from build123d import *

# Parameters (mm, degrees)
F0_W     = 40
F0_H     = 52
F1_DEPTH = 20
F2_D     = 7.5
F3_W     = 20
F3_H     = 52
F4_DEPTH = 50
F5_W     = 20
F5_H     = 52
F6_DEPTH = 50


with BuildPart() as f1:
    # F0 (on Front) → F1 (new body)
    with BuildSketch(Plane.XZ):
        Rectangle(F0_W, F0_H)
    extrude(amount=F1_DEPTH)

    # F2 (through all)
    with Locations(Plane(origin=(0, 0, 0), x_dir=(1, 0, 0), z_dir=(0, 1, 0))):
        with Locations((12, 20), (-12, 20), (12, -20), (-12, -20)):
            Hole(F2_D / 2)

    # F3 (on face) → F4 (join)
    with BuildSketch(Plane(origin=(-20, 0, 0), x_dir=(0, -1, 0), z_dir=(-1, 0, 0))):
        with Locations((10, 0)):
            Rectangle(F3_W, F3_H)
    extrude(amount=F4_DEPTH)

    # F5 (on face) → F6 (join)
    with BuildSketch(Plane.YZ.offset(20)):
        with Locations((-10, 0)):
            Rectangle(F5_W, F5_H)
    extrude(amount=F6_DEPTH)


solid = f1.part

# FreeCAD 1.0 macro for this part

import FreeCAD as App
import Part
import Sketcher
from FreeCAD import Vector
Q = App.Units.Quantity


def add_polygon(sketch, points):
    """Adds a closed chain of lines whose ends are joined by coincident constraints."""
    first, n = sketch.GeometryCount, len(points)
    for a, b in zip(points, points[1:] + points[:1]):
        sketch.addGeometry(Part.LineSegment(App.Vector(*a, 0), App.Vector(*b, 0)), False)
    for i in range(n):
        sketch.addConstraint(Sketcher.Constraint("Coincident", first + i, 2, first + (i + 1) % n, 1))

doc = App.newDocument("Part")
body = doc.addObject("PartDesign::Body", "Body")

# Sketch on XZ plane
sketch1 = doc.addObject("Sketcher::SketchObject", "Sketch")
body.addObject(sketch1)
sketch1.AttachmentSupport = (doc.XZ_Plane, [""])
sketch1.MapMode = "FlatFace"
add_polygon(sketch1, [(-20, 26), (-20, -26), (20, -26), (20, 26)])  # lines 0-3
sketch1.addConstraint(Sketcher.Constraint("Vertical", 0))
sketch1.addConstraint(Sketcher.Constraint("Horizontal", 1))
sketch1.addConstraint(Sketcher.Constraint("Vertical", 2))
sketch1.addConstraint(Sketcher.Constraint("Horizontal", 3))
sketch1.addConstraint(Sketcher.Constraint("Symmetric", 0, 2, 2, 2, -1, 1))
sketch1.addConstraint(Sketcher.Constraint("DistanceX", 1, 1, 1, 2, Q("40 mm")))
sketch1.addConstraint(Sketcher.Constraint("DistanceY", 0, 2, 0, 1, Q("52 mm")))
pad1 = doc.addObject("PartDesign::Pad", "Pad")
body.addObject(pad1)
pad1.Profile = sketch1
pad1.Length = 20

# Sketch on XZ plane
sketch2 = doc.addObject("Sketcher::SketchObject", "Sketch001")
body.addObject(sketch2)
sketch2.AttachmentSupport = (doc.XZ_Plane, [""])
sketch2.MapMode = "FlatFace"
sketch2.addGeometry(Part.Circle(Vector(12, -20, 0), Vector(0, 0, 1), 3.75), False)
sketch2.addGeometry(Part.Circle(Vector(-12, -20, 0), Vector(0, 0, 1), 3.75), False)
sketch2.addGeometry(Part.Circle(Vector(12, 20, 0), Vector(0, 0, 1), 3.75), False)
sketch2.addGeometry(Part.Circle(Vector(-12, 20, 0), Vector(0, 0, 1), 3.75), False)
sketch2.addConstraint(Sketcher.Constraint("Equal", 0, 1))
sketch2.addConstraint(Sketcher.Constraint("Equal", 1, 2))
sketch2.addConstraint(Sketcher.Constraint("Equal", 2, 3))
sketch2.addConstraint(Sketcher.Constraint("Symmetric", 1, 3, 2, 3, -1, 1))
sketch2.addConstraint(Sketcher.Constraint("Symmetric", 0, 3, 3, 3, -1, 1))
sketch2.addConstraint(Sketcher.Constraint("Symmetric", 0, 3, 1, 3, -2))
sketch2.addConstraint(Sketcher.Constraint("Diameter", 0, Q("7.5 mm")))
sketch2.addConstraint(Sketcher.Constraint("DistanceX", -1, 1, 0, 3, Q("12 mm")))
sketch2.addConstraint(Sketcher.Constraint("DistanceY", 0, 3, -1, 1, Q("20 mm")))
doc.recompute()
hole = doc.addObject("PartDesign::Hole", "Hole")
body.addObject(hole)
hole.Profile = sketch2
hole.ThreadType = "None"
hole.Diameter = 7.5
hole.DepthType = "ThroughAll"
hole.Reversed = True

# Sketch on YZ plane
sketch3 = doc.addObject("Sketcher::SketchObject", "Sketch002")
body.addObject(sketch3)
sketch3.AttachmentSupport = (doc.YZ_Plane, [""])
sketch3.MapMode = "FlatFace"
sketch3.AttachmentOffset = App.Placement(Vector(0, 0, -20), App.Rotation())
add_polygon(sketch3, [(0, 26), (0, -26), (-20, -26), (-20, 26)])  # lines 0-3
sketch3.addConstraint(Sketcher.Constraint("Vertical", 0))
sketch3.addConstraint(Sketcher.Constraint("Horizontal", 1))
sketch3.addConstraint(Sketcher.Constraint("Vertical", 2))
sketch3.addConstraint(Sketcher.Constraint("Horizontal", 3))
sketch3.addConstraint(Sketcher.Constraint("Symmetric", 0, 2, 3, 2, -1, 1))
sketch3.addConstraint(Sketcher.Constraint("DistanceX", 1, 2, 1, 1, Q("20 mm")))
sketch3.addConstraint(Sketcher.Constraint("DistanceY", 0, 2, 0, 1, Q("52 mm")))
pad2 = doc.addObject("PartDesign::Pad", "Pad001")
body.addObject(pad2)
pad2.Profile = sketch3
pad2.Length = 50
pad2.Reversed = True

# Sketch on YZ plane
sketch4 = doc.addObject("Sketcher::SketchObject", "Sketch003")
body.addObject(sketch4)
sketch4.AttachmentSupport = (doc.YZ_Plane, [""])
sketch4.MapMode = "FlatFace"
sketch4.AttachmentOffset = App.Placement(Vector(0, 0, 20), App.Rotation())
add_polygon(sketch4, [(-20, 26), (-20, -26), (0, -26), (0, 26)])  # lines 0-3
sketch4.addConstraint(Sketcher.Constraint("Vertical", 0))
sketch4.addConstraint(Sketcher.Constraint("Horizontal", 1))
sketch4.addConstraint(Sketcher.Constraint("Vertical", 2))
sketch4.addConstraint(Sketcher.Constraint("Horizontal", 3))
sketch4.addConstraint(Sketcher.Constraint("Symmetric", 1, 2, 2, 2, -1, 1))
sketch4.addConstraint(Sketcher.Constraint("DistanceX", 1, 1, 1, 2, Q("20 mm")))
sketch4.addConstraint(Sketcher.Constraint("DistanceY", 0, 2, 0, 1, Q("52 mm")))
pad3 = doc.addObject("PartDesign::Pad", "Pad002")
body.addObject(pad3)
pad3.Profile = sketch4
pad3.Length = 50

doc.recompute()
